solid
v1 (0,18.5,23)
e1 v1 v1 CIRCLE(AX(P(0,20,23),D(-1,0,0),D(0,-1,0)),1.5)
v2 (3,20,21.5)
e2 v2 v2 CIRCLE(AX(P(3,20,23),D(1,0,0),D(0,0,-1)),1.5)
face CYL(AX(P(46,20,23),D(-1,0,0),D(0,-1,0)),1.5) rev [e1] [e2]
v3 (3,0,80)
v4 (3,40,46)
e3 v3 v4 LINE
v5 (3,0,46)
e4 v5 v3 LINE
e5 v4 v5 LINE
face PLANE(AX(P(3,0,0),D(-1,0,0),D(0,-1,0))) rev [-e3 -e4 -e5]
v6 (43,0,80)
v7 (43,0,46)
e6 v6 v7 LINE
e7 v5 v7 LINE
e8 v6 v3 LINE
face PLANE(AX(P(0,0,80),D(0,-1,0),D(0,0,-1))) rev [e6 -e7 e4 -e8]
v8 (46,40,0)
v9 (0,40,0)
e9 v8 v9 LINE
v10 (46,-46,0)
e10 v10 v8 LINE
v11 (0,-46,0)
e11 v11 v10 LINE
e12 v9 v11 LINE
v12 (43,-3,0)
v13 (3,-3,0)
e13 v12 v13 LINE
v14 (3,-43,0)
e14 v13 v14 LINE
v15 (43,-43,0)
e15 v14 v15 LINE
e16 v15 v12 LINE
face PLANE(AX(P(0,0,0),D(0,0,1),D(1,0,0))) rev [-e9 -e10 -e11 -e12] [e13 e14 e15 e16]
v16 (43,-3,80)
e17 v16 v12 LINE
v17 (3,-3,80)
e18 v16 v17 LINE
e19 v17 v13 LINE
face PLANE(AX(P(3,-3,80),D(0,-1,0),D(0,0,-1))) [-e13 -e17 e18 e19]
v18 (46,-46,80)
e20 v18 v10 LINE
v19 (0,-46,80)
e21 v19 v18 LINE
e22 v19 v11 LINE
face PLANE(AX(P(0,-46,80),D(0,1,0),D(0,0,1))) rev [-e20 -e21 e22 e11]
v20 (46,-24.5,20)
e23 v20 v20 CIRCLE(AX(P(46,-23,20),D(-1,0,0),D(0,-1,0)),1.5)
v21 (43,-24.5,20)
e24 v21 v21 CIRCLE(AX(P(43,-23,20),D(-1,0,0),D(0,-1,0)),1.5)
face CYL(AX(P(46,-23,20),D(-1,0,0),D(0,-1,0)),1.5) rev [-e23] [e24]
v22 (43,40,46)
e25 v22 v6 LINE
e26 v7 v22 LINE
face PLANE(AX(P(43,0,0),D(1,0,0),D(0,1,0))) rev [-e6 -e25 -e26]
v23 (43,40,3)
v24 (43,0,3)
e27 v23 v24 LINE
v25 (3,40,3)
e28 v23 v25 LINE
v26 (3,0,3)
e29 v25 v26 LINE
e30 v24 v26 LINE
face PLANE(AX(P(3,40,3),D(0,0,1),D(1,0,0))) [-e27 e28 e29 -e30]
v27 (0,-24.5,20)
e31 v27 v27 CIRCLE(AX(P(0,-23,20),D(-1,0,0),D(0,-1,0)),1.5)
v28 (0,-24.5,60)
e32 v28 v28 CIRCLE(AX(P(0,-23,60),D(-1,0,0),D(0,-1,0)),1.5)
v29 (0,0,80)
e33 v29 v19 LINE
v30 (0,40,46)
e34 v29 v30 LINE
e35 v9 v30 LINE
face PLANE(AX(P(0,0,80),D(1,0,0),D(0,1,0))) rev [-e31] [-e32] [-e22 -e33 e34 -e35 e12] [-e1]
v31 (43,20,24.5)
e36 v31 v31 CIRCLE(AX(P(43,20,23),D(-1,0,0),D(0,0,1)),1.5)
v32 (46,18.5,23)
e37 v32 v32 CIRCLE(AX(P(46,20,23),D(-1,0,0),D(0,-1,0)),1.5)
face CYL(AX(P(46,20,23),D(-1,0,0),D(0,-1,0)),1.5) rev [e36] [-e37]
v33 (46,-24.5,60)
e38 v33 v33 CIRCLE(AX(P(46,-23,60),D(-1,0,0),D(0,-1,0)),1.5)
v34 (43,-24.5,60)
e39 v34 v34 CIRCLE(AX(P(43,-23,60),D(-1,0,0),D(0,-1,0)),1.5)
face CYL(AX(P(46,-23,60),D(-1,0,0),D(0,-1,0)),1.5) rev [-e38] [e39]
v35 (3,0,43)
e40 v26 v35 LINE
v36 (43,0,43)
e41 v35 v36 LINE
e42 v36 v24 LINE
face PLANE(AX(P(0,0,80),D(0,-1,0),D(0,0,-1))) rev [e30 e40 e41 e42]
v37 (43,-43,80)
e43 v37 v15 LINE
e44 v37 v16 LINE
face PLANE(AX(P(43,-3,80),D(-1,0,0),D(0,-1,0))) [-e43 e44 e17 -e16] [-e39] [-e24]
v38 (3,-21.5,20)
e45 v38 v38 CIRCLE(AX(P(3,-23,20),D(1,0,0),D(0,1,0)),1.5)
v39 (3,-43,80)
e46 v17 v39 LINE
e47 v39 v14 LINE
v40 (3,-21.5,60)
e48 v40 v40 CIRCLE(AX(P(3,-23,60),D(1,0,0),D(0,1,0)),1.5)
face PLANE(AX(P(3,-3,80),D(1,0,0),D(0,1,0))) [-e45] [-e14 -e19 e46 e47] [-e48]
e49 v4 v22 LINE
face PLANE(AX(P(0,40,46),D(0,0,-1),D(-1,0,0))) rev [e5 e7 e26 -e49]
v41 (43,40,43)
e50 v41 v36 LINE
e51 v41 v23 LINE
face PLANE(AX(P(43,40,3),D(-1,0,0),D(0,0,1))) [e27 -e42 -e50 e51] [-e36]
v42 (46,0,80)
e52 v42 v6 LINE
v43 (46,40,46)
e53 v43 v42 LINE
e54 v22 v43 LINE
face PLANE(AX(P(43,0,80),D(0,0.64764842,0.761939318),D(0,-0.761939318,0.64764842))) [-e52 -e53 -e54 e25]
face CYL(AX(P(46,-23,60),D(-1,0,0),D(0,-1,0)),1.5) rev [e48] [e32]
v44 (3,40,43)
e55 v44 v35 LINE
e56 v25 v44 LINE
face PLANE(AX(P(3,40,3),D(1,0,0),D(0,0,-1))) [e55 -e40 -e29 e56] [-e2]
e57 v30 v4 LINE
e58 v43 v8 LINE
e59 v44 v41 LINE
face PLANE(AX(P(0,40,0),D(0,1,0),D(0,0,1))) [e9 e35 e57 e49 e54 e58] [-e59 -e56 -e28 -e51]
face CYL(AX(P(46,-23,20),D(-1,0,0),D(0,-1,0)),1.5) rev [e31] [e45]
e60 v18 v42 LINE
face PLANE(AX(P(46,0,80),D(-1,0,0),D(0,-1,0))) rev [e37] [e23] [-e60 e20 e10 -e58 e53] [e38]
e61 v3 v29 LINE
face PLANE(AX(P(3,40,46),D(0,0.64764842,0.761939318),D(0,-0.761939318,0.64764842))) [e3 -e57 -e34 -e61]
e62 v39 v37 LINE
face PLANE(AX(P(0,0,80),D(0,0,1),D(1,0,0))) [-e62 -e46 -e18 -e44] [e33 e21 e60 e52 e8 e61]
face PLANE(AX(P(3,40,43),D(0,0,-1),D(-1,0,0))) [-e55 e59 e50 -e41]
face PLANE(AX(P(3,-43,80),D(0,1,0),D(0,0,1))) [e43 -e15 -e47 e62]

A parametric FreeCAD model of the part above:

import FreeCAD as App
import Part
import Sketcher

V = App.Vector


def add_polygon(sketch, points):
    """Adds a closed chain of lines whose ends are joined by coincident constraints."""
    first, n = sketch.GeometryCount, len(points)
    for a, b in zip(points, points[1:] + points[:1]):
        sketch.addGeometry(Part.LineSegment(App.Vector(*a, 0), App.Vector(*b, 0)), False)
    for i in range(n):
        sketch.addConstraint(Sketcher.Constraint("Coincident", first + i, 2, first + (i + 1) % n, 1))

doc = App.newDocument("Part")
body = doc.addObject("PartDesign::Body", "Body")

# Sketch on XY plane
sketch1 = doc.addObject("Sketcher::SketchObject", "Sketch")
body.addObject(sketch1)
sketch1.AttachmentSupport = (doc.XY_Plane, [""])
sketch1.MapMode = "FlatFace"
add_polygon(sketch1, [(0, 0), (0, -46), (46, -46), (46, 0)])  # lines 0-3
add_polygon(sketch1, [(43, -43), (3, -43), (3, -3), (43, -3)])  # lines 4-7
sketch1.addConstraint([
    Sketcher.Constraint("Vertical", 0),
    Sketcher.Constraint("Horizontal", 1),
    Sketcher.Constraint("Vertical", 2),
    Sketcher.Constraint("Horizontal", 3),
    Sketcher.Constraint("Horizontal", 4),
    Sketcher.Constraint("Vertical", 5),
    Sketcher.Constraint("Horizontal", 6),
    Sketcher.Constraint("Vertical", 7),
    Sketcher.Constraint("Coincident", 3, 2, -1, 1),
    Sketcher.Constraint("Equal", 3, 0),
    Sketcher.Constraint("Equal", 6, 5),
    Sketcher.Constraint("DistanceX", 1, 1, 1, 2, 46.0),
    Sketcher.Constraint("DistanceX", 4, 2, 4, 1, 40.0),
    Sketcher.Constraint("DistanceX", -1, 1, 4, 2, 3.0),
    Sketcher.Constraint("DistanceY", 4, 2, -1, 1, 43.0),
])
pad1 = doc.addObject("PartDesign::Pad", "Pad")
body.addObject(pad1)
pad1.Profile = sketch1
pad1.Length = 80

# Sketch on XZ plane
sketch2 = doc.addObject("Sketcher::SketchObject", "Sketch001")
body.addObject(sketch2)
sketch2.AttachmentSupport = (doc.XZ_Plane, [""])
sketch2.MapMode = "FlatFace"
add_polygon(sketch2, [(0, 0), (0, 46), (46, 46), (46, 0)])  # lines 0-3
add_polygon(sketch2, [(43, 43), (3, 43), (3, 3), (43, 3)])  # lines 4-7
sketch2.addConstraint([
    Sketcher.Constraint("Vertical", 0),
    Sketcher.Constraint("Horizontal", 1),
    Sketcher.Constraint("Vertical", 2),
    Sketcher.Constraint("Horizontal", 3),
    Sketcher.Constraint("Horizontal", 4),
    Sketcher.Constraint("Vertical", 5),
    Sketcher.Constraint("Horizontal", 6),
    Sketcher.Constraint("Vertical", 7),
    Sketcher.Constraint("Coincident", 3, 2, -1, 1),
    Sketcher.Constraint("Equal", 3, 0),
    Sketcher.Constraint("Equal", 6, 5),
    Sketcher.Constraint("DistanceX", 1, 1, 1, 2, 46.0),
    Sketcher.Constraint("DistanceX", 4, 2, 4, 1, 40.0),
    Sketcher.Constraint("DistanceX", -1, 1, 4, 2, 3.0),
    Sketcher.Constraint("DistanceY", -1, 1, 4, 2, 43.0),
])
pad2 = doc.addObject("PartDesign::Pad", "Pad001")
body.addObject(pad2)
pad2.Profile = sketch2
pad2.Length = 40
pad2.Reversed = True

# Sketch on YZ plane
sketch3 = doc.addObject("Sketcher::SketchObject", "Sketch002")
body.addObject(sketch3)
sketch3.AttachmentSupport = (doc.YZ_Plane, [""])
sketch3.MapMode = "FlatFace"
sketch3.AttachmentOffset = App.Placement(V(0, 0, 46), App.Rotation())
add_polygon(sketch3, [(40, 46), (0, 80), (0, 46)])  # lines 0-2
sketch3.addConstraint([
    Sketcher.Constraint("Vertical", 1),
    Sketcher.Constraint("Horizontal", 2),
    Sketcher.Constraint("PointOnObject", 0, 2, -2),
    Sketcher.Constraint("DistanceX", 2, 1, 2, 2, 40.0),
    Sketcher.Constraint("DistanceY", 1, 2, 1, 1, 34.0),
    Sketcher.Constraint("DistanceY", -1, 1, 0, 2, 80.0),
])
pad3 = doc.addObject("PartDesign::Pad", "Pad002")
body.addObject(pad3)
pad3.Profile = sketch3
pad3.Length = 3
pad3.Reversed = True

# Sketch on YZ plane
sketch4 = doc.addObject("Sketcher::SketchObject", "Sketch003")
body.addObject(sketch4)
sketch4.AttachmentSupport = (doc.YZ_Plane, [""])
sketch4.MapMode = "FlatFace"
add_polygon(sketch4, [(0, 80), (40, 46), (0, 46)])  # lines 0-2
sketch4.addConstraint([
    Sketcher.Constraint("Horizontal", 1),
    Sketcher.Constraint("Vertical", 2),
    Sketcher.Constraint("PointOnObject", 1, 2, -2),
    Sketcher.Constraint("DistanceX", 1, 2, 1, 1, 40.0),
    Sketcher.Constraint("DistanceY", 2, 1, 2, 2, 34.0),
    Sketcher.Constraint("DistanceY", -1, 1, 0, 2, 46.0),
])
pad4 = doc.addObject("PartDesign::Pad", "Pad003")
body.addObject(pad4)
pad4.Profile = sketch4
pad4.Length = 3

# Sketch on YZ plane
sketch5 = doc.addObject("Sketcher::SketchObject", "Sketch004")
body.addObject(sketch5)
sketch5.AttachmentSupport = (doc.YZ_Plane, [""])
sketch5.MapMode = "FlatFace"
sketch5.addGeometry([
    Part.Circle(V(20, 23, 0), V(0, 0, 1), 1.5),
    Part.Circle(V(-23, 20, 0), V(0, 0, 1), 1.5),
    Part.Circle(V(-23, 60, 0), V(0, 0, 1), 1.5),
], False)
sketch5.addConstraint([
    Sketcher.Constraint("Equal", 0, 1),
    Sketcher.Constraint("Equal", 1, 2),
    Sketcher.Constraint("Vertical", 1, 3, 2, 3),
    Sketcher.Constraint("Diameter", 0, 3.0),
    Sketcher.Constraint("DistanceX", -1, 1, 0, 3, 20.0),
    Sketcher.Constraint("DistanceY", -1, 1, 0, 3, 23.0),
    Sketcher.Constraint("DistanceX", 1, 3, -1, 1, 23.0),
    Sketcher.Constraint("DistanceY", -1, 1, 1, 3, 20.0),
    Sketcher.Constraint("DistanceY", -1, 1, 2, 3, 60.0),
])
pocket1 = doc.addObject("PartDesign::Pocket", "Pocket")
body.addObject(pocket1)
pocket1.Profile = sketch5
pocket1.Type = "ThroughAll"
pocket1.Reversed = True

doc.recompute()
